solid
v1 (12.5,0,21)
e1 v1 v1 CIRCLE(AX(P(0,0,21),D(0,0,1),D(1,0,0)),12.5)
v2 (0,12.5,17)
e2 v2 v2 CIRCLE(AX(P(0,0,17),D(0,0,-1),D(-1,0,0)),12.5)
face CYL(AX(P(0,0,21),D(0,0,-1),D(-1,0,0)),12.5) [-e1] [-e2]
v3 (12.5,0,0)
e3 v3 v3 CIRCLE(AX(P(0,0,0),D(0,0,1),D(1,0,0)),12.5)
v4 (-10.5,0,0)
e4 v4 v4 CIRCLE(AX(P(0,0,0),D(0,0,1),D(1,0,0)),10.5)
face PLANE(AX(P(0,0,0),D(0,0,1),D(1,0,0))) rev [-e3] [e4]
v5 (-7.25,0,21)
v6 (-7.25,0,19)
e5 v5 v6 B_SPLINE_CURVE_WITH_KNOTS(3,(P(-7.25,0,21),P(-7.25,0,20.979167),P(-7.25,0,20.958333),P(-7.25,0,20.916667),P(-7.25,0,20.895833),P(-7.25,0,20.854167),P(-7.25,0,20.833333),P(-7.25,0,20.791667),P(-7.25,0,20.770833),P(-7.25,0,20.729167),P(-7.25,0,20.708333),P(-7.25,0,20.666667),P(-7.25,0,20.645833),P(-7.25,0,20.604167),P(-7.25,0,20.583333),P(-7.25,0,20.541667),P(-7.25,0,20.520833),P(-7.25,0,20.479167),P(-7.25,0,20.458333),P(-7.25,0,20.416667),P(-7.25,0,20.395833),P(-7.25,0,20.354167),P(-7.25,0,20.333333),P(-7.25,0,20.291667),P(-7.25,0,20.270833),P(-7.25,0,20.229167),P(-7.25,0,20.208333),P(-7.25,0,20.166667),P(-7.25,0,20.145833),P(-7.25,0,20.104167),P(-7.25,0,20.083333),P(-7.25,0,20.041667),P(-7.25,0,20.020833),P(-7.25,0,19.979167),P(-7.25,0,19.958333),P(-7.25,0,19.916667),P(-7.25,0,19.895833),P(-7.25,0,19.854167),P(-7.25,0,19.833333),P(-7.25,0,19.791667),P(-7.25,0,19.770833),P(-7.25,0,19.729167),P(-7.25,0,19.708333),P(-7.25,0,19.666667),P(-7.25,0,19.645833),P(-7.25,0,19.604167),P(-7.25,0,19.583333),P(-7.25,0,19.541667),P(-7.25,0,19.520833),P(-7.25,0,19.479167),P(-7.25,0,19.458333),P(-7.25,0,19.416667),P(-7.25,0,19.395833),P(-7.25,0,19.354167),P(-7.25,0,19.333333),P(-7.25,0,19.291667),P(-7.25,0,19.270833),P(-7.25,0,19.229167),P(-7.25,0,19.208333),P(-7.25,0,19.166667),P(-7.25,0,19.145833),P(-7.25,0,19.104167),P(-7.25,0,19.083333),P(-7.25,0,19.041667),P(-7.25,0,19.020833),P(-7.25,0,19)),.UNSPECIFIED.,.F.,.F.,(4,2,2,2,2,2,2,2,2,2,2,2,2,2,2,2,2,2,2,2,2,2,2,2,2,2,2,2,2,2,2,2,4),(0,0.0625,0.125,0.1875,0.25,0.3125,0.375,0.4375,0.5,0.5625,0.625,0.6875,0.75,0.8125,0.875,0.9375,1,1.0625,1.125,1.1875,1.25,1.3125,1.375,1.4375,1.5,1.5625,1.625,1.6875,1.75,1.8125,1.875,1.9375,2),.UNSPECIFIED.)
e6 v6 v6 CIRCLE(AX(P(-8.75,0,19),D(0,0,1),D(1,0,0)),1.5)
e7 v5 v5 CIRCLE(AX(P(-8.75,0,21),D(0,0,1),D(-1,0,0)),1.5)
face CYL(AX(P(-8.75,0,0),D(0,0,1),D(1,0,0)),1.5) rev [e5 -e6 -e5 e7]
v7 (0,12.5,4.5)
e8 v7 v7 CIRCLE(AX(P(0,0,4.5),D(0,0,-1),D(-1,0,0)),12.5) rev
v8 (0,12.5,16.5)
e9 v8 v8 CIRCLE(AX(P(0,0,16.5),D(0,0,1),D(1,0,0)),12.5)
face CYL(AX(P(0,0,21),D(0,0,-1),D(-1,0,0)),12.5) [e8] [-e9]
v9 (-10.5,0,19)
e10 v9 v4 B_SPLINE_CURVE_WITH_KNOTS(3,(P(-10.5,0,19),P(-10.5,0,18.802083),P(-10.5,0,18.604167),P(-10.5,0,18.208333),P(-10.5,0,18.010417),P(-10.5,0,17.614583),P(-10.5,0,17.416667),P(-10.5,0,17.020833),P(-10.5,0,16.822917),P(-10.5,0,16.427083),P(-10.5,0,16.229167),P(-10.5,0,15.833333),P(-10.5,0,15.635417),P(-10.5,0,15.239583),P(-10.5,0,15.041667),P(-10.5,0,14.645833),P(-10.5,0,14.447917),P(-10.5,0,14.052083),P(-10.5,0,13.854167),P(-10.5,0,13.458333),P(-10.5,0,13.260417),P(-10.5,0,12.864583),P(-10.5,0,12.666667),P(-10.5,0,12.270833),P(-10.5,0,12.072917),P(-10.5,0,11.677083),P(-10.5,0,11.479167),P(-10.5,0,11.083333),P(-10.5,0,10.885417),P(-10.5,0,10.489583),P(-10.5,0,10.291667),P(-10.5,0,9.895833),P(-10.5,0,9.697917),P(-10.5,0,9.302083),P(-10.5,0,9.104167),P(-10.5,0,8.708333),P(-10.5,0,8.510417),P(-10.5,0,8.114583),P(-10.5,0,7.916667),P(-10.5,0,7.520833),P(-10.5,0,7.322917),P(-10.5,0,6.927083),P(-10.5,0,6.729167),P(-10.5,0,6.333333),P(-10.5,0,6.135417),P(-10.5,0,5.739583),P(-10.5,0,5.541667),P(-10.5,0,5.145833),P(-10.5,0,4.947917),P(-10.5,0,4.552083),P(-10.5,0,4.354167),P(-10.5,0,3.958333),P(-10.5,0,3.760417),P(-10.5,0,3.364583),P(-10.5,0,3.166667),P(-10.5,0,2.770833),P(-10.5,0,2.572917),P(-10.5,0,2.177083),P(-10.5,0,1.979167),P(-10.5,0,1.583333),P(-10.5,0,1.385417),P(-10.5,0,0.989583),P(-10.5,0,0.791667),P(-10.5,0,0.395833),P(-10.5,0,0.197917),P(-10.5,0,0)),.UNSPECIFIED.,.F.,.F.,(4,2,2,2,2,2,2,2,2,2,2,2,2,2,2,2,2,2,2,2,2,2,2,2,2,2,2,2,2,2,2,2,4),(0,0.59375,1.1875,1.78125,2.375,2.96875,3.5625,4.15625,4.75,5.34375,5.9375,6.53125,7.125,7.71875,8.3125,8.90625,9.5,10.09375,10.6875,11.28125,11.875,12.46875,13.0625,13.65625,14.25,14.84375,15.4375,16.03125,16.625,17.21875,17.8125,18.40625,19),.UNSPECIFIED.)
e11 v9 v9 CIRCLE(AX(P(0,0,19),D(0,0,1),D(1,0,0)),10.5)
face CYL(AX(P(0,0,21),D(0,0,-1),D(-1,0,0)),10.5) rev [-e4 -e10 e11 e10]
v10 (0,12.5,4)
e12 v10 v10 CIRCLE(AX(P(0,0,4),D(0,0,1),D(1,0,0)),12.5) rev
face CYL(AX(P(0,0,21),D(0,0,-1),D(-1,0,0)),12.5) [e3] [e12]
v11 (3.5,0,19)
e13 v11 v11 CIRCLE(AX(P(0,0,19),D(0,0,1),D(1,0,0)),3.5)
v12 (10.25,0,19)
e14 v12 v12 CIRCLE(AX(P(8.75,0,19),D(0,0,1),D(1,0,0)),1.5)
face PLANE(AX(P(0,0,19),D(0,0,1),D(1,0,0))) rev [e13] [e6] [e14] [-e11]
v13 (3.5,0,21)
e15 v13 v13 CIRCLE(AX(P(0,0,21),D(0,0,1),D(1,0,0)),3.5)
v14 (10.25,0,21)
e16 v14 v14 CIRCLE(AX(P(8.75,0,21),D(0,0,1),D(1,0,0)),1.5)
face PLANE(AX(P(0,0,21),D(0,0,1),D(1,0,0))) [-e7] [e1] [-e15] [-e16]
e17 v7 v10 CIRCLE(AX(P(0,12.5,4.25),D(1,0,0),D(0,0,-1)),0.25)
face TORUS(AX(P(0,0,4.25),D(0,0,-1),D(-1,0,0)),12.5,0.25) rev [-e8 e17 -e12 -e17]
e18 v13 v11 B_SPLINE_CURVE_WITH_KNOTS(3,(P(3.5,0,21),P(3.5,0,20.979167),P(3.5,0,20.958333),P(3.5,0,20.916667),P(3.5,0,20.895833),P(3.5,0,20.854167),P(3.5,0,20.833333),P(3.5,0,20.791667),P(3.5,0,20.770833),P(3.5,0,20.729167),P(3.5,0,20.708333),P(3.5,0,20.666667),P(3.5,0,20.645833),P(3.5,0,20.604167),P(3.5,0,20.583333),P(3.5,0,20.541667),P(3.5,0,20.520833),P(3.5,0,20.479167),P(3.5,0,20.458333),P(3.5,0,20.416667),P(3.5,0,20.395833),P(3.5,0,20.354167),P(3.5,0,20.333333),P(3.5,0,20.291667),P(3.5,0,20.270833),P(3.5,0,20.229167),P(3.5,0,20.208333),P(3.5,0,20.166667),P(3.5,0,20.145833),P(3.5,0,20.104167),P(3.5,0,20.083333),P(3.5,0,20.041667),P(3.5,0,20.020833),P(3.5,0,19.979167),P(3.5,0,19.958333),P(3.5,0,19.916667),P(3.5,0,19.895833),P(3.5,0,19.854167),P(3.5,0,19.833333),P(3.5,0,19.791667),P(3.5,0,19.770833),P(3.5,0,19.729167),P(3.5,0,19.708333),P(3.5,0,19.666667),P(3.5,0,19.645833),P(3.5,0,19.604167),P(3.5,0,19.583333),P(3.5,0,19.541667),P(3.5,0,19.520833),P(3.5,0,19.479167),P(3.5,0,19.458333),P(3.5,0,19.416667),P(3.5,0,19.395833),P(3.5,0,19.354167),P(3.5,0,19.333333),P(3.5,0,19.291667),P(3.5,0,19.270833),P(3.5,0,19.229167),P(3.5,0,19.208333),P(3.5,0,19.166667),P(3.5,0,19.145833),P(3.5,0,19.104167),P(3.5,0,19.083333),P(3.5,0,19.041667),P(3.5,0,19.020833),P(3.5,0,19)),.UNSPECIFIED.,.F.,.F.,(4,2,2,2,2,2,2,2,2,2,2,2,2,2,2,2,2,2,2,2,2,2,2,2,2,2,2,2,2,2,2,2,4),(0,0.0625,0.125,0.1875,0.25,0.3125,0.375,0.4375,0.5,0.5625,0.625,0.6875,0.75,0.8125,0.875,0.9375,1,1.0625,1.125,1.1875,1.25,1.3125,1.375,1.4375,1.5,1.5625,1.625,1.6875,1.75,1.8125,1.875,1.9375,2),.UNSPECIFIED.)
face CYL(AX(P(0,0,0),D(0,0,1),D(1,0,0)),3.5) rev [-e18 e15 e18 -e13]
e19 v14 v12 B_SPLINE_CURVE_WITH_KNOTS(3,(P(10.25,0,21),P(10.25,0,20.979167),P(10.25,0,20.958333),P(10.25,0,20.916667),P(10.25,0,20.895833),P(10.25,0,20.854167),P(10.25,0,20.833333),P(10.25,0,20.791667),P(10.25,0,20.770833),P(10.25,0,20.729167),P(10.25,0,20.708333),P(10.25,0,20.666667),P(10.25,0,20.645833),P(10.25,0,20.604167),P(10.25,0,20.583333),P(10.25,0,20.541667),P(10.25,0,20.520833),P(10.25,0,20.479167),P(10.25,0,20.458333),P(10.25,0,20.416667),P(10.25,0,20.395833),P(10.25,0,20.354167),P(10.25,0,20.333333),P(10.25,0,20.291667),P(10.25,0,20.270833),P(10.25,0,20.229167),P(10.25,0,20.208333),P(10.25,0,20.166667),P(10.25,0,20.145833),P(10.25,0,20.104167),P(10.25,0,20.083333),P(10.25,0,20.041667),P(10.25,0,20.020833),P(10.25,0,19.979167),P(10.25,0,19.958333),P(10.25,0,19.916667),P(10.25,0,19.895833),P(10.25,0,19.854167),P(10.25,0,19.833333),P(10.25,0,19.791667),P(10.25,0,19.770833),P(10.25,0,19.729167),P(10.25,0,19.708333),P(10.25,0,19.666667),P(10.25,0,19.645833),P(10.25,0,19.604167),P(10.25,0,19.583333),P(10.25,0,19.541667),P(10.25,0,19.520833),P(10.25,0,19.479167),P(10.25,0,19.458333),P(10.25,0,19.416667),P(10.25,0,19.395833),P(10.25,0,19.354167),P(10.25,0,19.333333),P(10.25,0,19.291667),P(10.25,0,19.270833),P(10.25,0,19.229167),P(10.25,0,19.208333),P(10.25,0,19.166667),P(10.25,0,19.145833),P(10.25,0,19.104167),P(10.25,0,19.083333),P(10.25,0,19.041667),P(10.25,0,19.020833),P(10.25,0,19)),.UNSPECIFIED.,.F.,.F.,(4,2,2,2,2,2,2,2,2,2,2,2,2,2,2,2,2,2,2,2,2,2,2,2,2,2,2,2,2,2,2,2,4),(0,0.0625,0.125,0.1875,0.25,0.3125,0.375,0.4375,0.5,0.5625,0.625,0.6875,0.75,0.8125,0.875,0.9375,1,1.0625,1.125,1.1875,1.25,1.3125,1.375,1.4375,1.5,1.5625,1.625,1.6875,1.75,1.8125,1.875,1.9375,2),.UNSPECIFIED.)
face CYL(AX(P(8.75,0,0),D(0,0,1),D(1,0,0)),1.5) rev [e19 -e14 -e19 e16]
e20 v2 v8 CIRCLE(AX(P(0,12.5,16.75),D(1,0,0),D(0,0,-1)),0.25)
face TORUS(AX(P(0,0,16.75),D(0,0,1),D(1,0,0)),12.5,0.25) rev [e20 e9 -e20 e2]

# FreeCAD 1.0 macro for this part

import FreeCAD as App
import Part
import Sketcher
Q = App.Units.Quantity


def faces_at(feature, points):
    """Names of the faces that lie closest to the given points."""
    faces = feature.Shape.Faces
    near = lambda p: min(range(len(faces)), key=lambda i: faces[i].distToShape(Part.Vertex(*p))[0])
    return sorted({f"Face{near(p) + 1}" for p in points})

doc = App.newDocument("Part")
body = doc.addObject("PartDesign::Body", "Body")

# Sketch on XY plane
sketch1 = doc.addObject("Sketcher::SketchObject", "Sketch")
body.addObject(sketch1)
sketch1.AttachmentSupport = (doc.XY_Plane, [""])
sketch1.MapMode = "FlatFace"
sketch1.addGeometry(Part.Circle(App.Vector(0, 0, 0), App.Vector(0, 0, 1), 12), False)
sketch1.addConstraint(Sketcher.Constraint("Coincident", 0, 3, -1, 1))
sketch1.addConstraint(Sketcher.Constraint("Diameter", 0, Q("25 mm")))
pad1 = doc.addObject("PartDesign::Pad", "Pad")
body.addObject(pad1)
pad1.Profile = sketch1
pad1.Length = 21
doc.recompute()

thickness = doc.addObject("PartDesign::Thickness", "Thickness")
body.addObject(thickness)
thickness.Base = (pad1, faces_at(pad1, [(0, 0, 0)]))
thickness.Value = 2
thickness.Reversed = True
thickness.Join = "Intersection"

# Sketch on XY plane
sketch2 = doc.addObject("Sketcher::SketchObject", "Sketch001")
body.addObject(sketch2)
sketch2.AttachmentSupport = (doc.XY_Plane, [""])
sketch2.MapMode = "FlatFace"
sketch2.AttachmentOffset = App.Placement(App.Vector(0, 0, 21), App.Rotation())
sketch2.addGeometry(Part.Circle(App.Vector(0, 0, 0), App.Vector(0, 0, 1), 3.5), False)
sketch2.addConstraint(Sketcher.Constraint("Coincident", 0, 3, -1, 1))
sketch2.addConstraint(Sketcher.Constraint("Diameter", 0, Q("7 mm")))
pocket1 = doc.addObject("PartDesign::Pocket", "Pocket")
body.addObject(pocket1)
pocket1.Profile = sketch2
pocket1.Type = "ThroughAll"

# Sketch on XY plane
sketch3 = doc.addObject("Sketcher::SketchObject", "Sketch002")
body.addObject(sketch3)
sketch3.AttachmentSupport = (doc.XY_Plane, [""])
sketch3.MapMode = "FlatFace"
sketch3.AttachmentOffset = App.Placement(App.Vector(0, 0, 21), App.Rotation())
sketch3.addGeometry(Part.Circle(App.Vector(8.8, 0, 0), App.Vector(0, 0, 1), 1.5), False)
sketch3.addGeometry(Part.Circle(App.Vector(-8.8, 0, 0), App.Vector(0, 0, 1), 1.5), False)
sketch3.addConstraint(Sketcher.Constraint("Equal", 0, 1))
sketch3.addConstraint(Sketcher.Constraint("Symmetric", 0, 3, 1, 3, -1, 1))
sketch3.addConstraint(Sketcher.Constraint("PointOnObject", 0, 3, -1))
sketch3.addConstraint(Sketcher.Constraint("Diameter", 0, Q("3 mm")))
sketch3.addConstraint(Sketcher.Constraint("DistanceX", 1, 3, 0, 3, Q("17.5 mm")))
pocket2 = doc.addObject("PartDesign::Pocket", "Pocket001")
body.addObject(pocket2)
pocket2.Profile = sketch3
pocket2.Type = "ThroughAll"

# Sketch on YZ plane
sketch4 = doc.addObject("Sketcher::SketchObject", "Sketch003")
body.addObject(sketch4)
sketch4.AttachmentSupport = (doc.YZ_Plane, [""])
sketch4.MapMode = "FlatFace"
sketch4.addGeometry(Part.Circle(App.Vector(12.5, 16.75, 0), App.Vector(0, 0, 1), 0.25), False)
sketch4.addConstraint(Sketcher.Constraint("Diameter", 0, Q("0.5 mm")))
sketch4.addConstraint(Sketcher.Constraint("DistanceX", -1, 1, 0, 3, Q("12.5 mm")))
sketch4.addConstraint(Sketcher.Constraint("DistanceY", -1, 1, 0, 3, Q("16.75 mm")))

# Sketch on XY plane
sketch5 = doc.addObject("Sketcher::SketchObject", "Sketch004")
body.addObject(sketch5)
sketch5.AttachmentSupport = (doc.XY_Plane, [""])
sketch5.MapMode = "FlatFace"
sketch5.AttachmentOffset = App.Placement(App.Vector(0, 0, 16.75), App.Rotation())
sketch5.addGeometry(Part.Circle(App.Vector(0, 0, 0), App.Vector(0, 0, 1), 12), False)
sketch5.addConstraint(Sketcher.Constraint("Coincident", 0, 3, -1, 1))
sketch5.addConstraint(Sketcher.Constraint("Diameter", 0, Q("25 mm")))
doc.recompute()

subtractivepipe = doc.addObject("PartDesign::SubtractivePipe", "SubtractivePipe")
body.addObject(subtractivepipe)
subtractivepipe.Profile = sketch4
subtractivepipe.Spine = (sketch5, ["Edge1"])

# Sketch on YZ plane
sketch6 = doc.addObject("Sketcher::SketchObject", "Sketch005")
body.addObject(sketch6)
sketch6.AttachmentSupport = (doc.YZ_Plane, [""])
sketch6.MapMode = "FlatFace"
sketch6.addGeometry(Part.Circle(App.Vector(12.5, 4.25, 0), App.Vector(0, 0, 1), 0.25), False)
sketch6.addConstraint(Sketcher.Constraint("Diameter", 0, Q("0.5 mm")))
sketch6.addConstraint(Sketcher.Constraint("DistanceX", -1, 1, 0, 3, Q("12.5 mm")))
sketch6.addConstraint(Sketcher.Constraint("DistanceY", -1, 1, 0, 3, Q("4.25 mm")))

# Sketch on XY plane
sketch7 = doc.addObject("Sketcher::SketchObject", "Sketch006")
body.addObject(sketch7)
sketch7.AttachmentSupport = (doc.XY_Plane, [""])
sketch7.MapMode = "FlatFace"
sketch7.AttachmentOffset = App.Placement(App.Vector(0, 0, 4.25), App.Rotation())
sketch7.addGeometry(Part.Circle(App.Vector(0, 0, 0), App.Vector(0, 0, 1), 12), False)
sketch7.addConstraint(Sketcher.Constraint("Coincident", 0, 3, -1, 1))
sketch7.addConstraint(Sketcher.Constraint("Diameter", 0, Q("25 mm")))
doc.recompute()

subtractivepipe2 = doc.addObject("PartDesign::SubtractivePipe", "SubtractivePipe001")
body.addObject(subtractivepipe2)
subtractivepipe2.Profile = sketch6
subtractivepipe2.Spine = (sketch7, ["Edge1"])

doc.recompute()
